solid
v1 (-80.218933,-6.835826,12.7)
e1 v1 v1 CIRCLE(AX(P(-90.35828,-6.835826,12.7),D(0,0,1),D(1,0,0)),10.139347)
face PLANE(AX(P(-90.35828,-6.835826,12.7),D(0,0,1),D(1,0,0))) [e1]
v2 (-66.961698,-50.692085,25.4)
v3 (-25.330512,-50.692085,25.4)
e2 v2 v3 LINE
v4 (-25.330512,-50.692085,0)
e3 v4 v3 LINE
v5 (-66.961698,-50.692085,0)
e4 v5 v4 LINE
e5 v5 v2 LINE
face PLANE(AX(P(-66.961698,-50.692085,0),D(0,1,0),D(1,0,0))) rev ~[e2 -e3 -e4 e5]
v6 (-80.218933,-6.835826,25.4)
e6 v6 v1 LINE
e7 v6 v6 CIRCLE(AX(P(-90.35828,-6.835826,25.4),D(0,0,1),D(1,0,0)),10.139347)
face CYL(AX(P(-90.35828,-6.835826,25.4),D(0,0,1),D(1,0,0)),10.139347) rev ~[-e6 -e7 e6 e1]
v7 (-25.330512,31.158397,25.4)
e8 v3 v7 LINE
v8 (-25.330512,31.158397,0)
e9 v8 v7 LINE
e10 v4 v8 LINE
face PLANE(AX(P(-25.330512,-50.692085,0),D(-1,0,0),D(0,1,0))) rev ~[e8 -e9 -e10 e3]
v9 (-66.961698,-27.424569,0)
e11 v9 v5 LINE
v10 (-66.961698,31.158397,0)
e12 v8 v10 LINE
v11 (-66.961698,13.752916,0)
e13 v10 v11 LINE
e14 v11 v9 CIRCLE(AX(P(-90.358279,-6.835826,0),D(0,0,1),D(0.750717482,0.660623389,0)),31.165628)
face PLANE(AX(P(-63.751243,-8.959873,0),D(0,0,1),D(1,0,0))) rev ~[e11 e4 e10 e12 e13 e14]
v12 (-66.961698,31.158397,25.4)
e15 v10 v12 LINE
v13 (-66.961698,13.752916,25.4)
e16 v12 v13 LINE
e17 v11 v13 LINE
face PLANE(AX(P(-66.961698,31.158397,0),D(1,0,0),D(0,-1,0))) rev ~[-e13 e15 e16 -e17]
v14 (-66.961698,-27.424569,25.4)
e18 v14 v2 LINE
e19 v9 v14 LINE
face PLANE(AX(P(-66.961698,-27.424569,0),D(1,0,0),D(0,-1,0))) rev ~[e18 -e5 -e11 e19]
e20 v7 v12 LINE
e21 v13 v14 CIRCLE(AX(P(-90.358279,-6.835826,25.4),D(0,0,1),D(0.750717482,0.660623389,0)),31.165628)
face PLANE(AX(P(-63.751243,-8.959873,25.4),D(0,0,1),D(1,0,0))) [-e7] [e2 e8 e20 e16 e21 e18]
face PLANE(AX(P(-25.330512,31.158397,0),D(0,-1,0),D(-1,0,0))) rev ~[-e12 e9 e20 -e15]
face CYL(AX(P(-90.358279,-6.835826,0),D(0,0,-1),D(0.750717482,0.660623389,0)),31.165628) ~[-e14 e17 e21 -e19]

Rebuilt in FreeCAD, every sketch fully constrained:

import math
import FreeCAD as App
import Part
import Sketcher
from FreeCAD import Vector
Q = App.Units.Quantity

doc = App.newDocument("Part")
body = doc.addObject("PartDesign::Body", "Body")

sketch1 = body.newObject("Sketcher::SketchObject", "Sketch")
sketch1.AttachmentSupport = (doc.getObject("XY_Plane"), [""])
sketch1.MapMode = "FlatFace"
sketch1.addGeometry([
    Part.LineSegment(Vector(-66.961698, 31.158397, 0), Vector(-66.961698, 13.752916, 0)),
    Part.ArcOfCircle(Part.Circle(Vector(-90.358279, -6.835826, 0), Vector(0, 0, 1), 31.165628), math.radians(41.347433), math.radians(318.652567)),
    Part.LineSegment(Vector(-66.961698, -27.424569, 0), Vector(-66.961698, -50.692085, 0)),
    Part.LineSegment(Vector(-66.961698, -50.692085, 0), Vector(-25.330512, -50.692085, 0)),
    Part.LineSegment(Vector(-25.330512, -50.692085, 0), Vector(-25.330512, 31.158397, 0)),
    Part.LineSegment(Vector(-25.330512, 31.158397, 0), Vector(-66.961698, 31.158397, 0)),
], False)
sketch1.addConstraint([
    Sketcher.Constraint("Coincident", 0, 2, 1, 1),
    Sketcher.Constraint("Coincident", 1, 2, 2, 1),
    Sketcher.Constraint("Coincident", 2, 2, 3, 1),
    Sketcher.Constraint("Coincident", 3, 2, 4, 1),
    Sketcher.Constraint("Coincident", 4, 2, 5, 1),
    Sketcher.Constraint("Coincident", 5, 2, 0, 1),
    Sketcher.Constraint("Vertical", 0),
    Sketcher.Constraint("Vertical", 2),
    Sketcher.Constraint("Horizontal", 3),
    Sketcher.Constraint("Vertical", 4),
    Sketcher.Constraint("Horizontal", 5),
    Sketcher.Constraint("Vertical", 0, 2, 1, 2),
    Sketcher.Constraint("Radius", 1, Q("31.165628 mm")),
    Sketcher.Constraint("DistanceY", 0, 2, 0, 1, Q("17.405481 mm")),
    Sketcher.Constraint("DistanceY", 4, 1, 4, 2, Q("81.850482 mm")),
    Sketcher.Constraint("DistanceX", 0, 2, -1, 1, Q("66.961698 mm")),
    Sketcher.Constraint("DistanceX", 3, 1, 3, 2, Q("41.631186 mm")),
    Sketcher.Constraint("DistanceY", 2, 2, 2, 1, Q("23.267516 mm")),
    Sketcher.Constraint("DistanceY", 1, 2, -1, 1, Q("27.424569 mm")),
])
pad1 = body.newObject("PartDesign::Pad", "Pad")
pad1.Profile = sketch1
pad1.Length = Q("1 in")

sketch2 = body.newObject("Sketcher::SketchObject", "Sketch001")
sketch2.AttachmentSupport = (doc.getObject("XY_Plane"), [""])
sketch2.MapMode = "FlatFace"
sketch2.AttachmentOffset = App.Placement(Vector(0, 0, 1 * 25.4), App.Rotation())
sketch2.addGeometry(Part.Circle(Vector(-90.35828, -6.835826, 0), Vector(0, 0, 1), 10.139347), False)
sketch2.addConstraint([
    Sketcher.Constraint("Diameter", 0, Q("20.278694 mm")),
    Sketcher.Constraint("DistanceX", 0, 3, -1, 1, Q("90.35828 mm")),
    Sketcher.Constraint("DistanceY", 0, 3, -1, 1, Q("6.835826 mm")),
])
pocket1 = body.newObject("PartDesign::Pocket", "Pocket")
pocket1.Profile = sketch2
pocket1.Length = Q("0.5 in")

doc.recompute()
